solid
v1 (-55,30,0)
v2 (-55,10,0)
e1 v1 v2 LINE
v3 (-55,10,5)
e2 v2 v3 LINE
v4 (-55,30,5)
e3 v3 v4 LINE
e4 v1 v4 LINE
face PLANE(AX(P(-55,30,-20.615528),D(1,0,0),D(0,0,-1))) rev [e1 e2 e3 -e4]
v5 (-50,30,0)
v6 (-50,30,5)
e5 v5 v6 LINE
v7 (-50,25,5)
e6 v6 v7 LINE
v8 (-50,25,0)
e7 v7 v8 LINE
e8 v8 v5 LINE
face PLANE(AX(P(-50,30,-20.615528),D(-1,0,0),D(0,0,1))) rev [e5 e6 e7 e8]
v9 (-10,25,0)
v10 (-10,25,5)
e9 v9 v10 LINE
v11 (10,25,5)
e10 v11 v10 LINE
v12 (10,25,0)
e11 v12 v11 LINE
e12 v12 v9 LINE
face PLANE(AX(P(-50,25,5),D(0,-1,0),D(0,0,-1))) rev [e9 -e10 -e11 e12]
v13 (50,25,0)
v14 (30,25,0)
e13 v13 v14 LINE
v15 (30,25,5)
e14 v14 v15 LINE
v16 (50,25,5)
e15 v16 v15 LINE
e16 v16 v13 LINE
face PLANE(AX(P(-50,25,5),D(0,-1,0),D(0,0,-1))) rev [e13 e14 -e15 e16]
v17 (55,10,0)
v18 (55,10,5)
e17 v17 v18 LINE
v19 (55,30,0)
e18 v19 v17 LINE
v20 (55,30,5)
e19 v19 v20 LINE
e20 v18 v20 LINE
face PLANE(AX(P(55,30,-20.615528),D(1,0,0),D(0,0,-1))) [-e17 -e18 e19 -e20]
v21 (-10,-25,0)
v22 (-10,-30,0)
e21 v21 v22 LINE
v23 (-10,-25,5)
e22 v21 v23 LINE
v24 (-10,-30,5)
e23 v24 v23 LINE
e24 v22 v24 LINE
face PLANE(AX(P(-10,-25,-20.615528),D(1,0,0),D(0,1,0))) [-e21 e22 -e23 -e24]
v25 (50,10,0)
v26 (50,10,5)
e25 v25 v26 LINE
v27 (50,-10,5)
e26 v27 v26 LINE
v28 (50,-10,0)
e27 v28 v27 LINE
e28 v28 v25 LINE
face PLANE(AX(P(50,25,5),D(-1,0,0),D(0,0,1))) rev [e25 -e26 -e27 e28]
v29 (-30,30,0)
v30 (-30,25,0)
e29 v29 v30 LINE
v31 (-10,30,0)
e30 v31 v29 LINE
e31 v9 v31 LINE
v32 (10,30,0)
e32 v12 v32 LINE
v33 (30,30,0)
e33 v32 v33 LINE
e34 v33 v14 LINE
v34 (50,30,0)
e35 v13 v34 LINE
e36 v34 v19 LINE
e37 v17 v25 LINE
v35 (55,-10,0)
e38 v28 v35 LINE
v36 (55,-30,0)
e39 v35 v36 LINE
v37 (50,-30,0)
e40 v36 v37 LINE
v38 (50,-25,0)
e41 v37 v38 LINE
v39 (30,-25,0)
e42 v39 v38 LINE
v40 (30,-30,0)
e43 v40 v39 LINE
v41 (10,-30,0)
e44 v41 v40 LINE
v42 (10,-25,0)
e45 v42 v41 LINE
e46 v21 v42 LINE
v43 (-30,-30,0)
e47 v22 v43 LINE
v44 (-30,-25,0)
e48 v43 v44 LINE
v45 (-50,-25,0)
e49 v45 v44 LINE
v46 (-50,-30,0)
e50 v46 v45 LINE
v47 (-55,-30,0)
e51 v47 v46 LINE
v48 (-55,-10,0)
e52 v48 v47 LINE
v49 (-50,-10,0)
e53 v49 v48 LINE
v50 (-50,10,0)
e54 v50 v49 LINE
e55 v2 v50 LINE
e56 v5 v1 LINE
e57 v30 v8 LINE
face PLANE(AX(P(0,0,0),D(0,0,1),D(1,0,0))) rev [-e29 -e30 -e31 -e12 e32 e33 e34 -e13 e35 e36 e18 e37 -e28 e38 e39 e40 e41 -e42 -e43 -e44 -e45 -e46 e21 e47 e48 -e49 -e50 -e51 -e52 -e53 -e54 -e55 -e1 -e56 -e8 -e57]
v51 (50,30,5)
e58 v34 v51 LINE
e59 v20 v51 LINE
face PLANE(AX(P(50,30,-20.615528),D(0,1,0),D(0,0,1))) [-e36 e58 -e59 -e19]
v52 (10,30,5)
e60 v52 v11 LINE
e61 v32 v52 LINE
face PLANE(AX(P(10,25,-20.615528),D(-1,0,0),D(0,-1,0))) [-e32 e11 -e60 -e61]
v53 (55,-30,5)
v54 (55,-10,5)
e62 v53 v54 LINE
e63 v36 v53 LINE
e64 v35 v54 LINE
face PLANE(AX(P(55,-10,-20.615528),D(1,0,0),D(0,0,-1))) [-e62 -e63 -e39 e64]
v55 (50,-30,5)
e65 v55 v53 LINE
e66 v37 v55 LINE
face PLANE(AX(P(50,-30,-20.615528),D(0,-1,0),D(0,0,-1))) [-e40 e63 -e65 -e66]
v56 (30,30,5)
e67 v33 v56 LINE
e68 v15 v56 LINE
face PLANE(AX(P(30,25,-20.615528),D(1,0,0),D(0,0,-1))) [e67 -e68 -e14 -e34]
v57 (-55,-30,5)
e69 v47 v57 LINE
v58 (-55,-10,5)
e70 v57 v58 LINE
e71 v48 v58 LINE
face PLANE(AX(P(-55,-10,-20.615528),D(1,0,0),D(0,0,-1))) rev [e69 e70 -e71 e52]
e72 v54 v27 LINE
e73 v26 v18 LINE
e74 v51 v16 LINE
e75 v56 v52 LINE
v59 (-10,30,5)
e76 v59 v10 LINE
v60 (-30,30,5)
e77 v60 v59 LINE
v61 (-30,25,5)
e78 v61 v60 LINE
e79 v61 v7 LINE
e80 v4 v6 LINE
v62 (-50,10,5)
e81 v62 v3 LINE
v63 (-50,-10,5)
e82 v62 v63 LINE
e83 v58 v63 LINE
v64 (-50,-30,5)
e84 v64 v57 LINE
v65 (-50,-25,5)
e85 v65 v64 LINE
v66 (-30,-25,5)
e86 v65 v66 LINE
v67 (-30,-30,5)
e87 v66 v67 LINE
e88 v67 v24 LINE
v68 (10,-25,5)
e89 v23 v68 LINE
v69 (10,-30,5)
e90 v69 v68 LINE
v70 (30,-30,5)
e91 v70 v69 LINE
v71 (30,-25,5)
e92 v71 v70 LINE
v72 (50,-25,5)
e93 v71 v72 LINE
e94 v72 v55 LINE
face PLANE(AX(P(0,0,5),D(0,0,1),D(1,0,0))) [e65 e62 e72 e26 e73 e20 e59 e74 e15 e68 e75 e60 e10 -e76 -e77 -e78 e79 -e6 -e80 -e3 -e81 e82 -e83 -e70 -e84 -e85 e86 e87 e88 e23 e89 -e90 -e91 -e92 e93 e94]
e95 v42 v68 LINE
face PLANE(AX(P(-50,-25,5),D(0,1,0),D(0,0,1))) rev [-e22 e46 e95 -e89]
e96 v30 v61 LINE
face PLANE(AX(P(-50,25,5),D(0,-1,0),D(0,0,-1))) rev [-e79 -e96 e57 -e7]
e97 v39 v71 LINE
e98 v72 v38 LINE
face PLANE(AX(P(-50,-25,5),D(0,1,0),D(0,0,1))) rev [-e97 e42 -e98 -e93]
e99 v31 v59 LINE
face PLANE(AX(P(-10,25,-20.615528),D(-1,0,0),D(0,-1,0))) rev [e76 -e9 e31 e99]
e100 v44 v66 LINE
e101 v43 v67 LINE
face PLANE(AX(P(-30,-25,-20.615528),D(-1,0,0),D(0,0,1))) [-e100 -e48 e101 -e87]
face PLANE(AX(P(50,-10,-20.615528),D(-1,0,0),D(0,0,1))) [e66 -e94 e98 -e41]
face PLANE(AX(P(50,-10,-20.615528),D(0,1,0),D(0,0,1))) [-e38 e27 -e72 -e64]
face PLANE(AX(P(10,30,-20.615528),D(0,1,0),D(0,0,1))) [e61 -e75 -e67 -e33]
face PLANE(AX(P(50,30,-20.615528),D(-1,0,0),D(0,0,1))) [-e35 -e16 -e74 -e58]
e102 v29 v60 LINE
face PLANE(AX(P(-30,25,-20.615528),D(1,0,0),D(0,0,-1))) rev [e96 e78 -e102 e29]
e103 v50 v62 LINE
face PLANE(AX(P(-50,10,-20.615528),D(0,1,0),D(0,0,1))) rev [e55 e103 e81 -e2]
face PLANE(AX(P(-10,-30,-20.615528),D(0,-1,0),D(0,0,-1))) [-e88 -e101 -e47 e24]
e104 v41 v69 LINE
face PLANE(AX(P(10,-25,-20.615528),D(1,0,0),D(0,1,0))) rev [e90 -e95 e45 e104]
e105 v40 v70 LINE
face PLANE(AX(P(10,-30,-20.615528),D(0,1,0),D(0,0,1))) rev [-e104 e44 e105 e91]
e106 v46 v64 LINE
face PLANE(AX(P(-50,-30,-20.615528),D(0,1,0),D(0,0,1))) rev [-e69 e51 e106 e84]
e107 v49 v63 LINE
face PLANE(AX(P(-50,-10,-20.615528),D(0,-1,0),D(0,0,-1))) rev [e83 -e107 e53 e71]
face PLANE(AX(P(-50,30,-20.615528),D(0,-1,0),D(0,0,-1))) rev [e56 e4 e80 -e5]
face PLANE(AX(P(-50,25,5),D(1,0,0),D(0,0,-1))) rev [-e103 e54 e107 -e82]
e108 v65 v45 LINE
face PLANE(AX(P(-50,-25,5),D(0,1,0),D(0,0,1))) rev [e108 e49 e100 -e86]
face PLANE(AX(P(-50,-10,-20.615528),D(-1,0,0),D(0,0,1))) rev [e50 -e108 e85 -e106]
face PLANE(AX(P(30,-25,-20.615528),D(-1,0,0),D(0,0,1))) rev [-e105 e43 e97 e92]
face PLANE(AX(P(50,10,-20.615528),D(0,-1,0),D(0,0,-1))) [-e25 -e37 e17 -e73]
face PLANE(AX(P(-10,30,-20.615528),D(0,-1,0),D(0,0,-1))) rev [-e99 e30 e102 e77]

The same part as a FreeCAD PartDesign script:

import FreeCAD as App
import Part
import Sketcher
from FreeCAD import Vector

doc = App.newDocument("Part")
body = doc.addObject("PartDesign::Body", "Body")

# Sketch on XY plane
sketch1 = body.newObject("Sketcher::SketchObject", "Sketch")
sketch1.AttachmentSupport = (doc.getObject("XY_Plane"), [""])
sketch1.MapMode = "FlatFace"
sketch1.addGeometry(Part.LineSegment(Vector(-50, 25, 0), Vector(-50, -25, 0)), False)
sketch1.addGeometry(Part.LineSegment(Vector(-50, -25, 0), Vector(50, -25, 0)), False)
sketch1.addGeometry(Part.LineSegment(Vector(50, -25, 0), Vector(50, 25, 0)), False)
sketch1.addGeometry(Part.LineSegment(Vector(50, 25, 0), Vector(-50, 25, 0)), False)
sketch1.addConstraint(Sketcher.Constraint("Coincident", 0, 2, 1, 1))
sketch1.addConstraint(Sketcher.Constraint("Coincident", 1, 2, 2, 1))
sketch1.addConstraint(Sketcher.Constraint("Coincident", 2, 2, 3, 1))
sketch1.addConstraint(Sketcher.Constraint("Coincident", 3, 2, 0, 1))
sketch1.addConstraint(Sketcher.Constraint("Vertical", 0))
sketch1.addConstraint(Sketcher.Constraint("Horizontal", 1))
sketch1.addConstraint(Sketcher.Constraint("Vertical", 2))
sketch1.addConstraint(Sketcher.Constraint("Horizontal", 3))
sketch1.addConstraint(Sketcher.Constraint("Symmetric", 0, 2, 2, 2, -1, 1))
sketch1.addConstraint(Sketcher.Constraint("DistanceX", 1, 1, 1, 2, 100.0))
sketch1.addConstraint(Sketcher.Constraint("DistanceY", 0, 2, 0, 1, 50.0))
pad1 = body.newObject("PartDesign::Pad", "Pad")
pad1.Profile = sketch1
pad1.Length = 5

# Sketch on XY plane
sketch2 = body.newObject("Sketcher::SketchObject", "Sketch001")
sketch2.AttachmentSupport = (doc.getObject("XY_Plane"), [""])
sketch2.MapMode = "FlatFace"
sketch2.AttachmentOffset = App.Placement(Vector(0, 0, 5), App.Rotation())
sketch2.addGeometry(Part.LineSegment(Vector(50, -10, 0), Vector(50, -30, 0)), False)
sketch2.addGeometry(Part.LineSegment(Vector(50, -30, 0), Vector(55, -30, 0)), False)
sketch2.addGeometry(Part.LineSegment(Vector(55, -30, 0), Vector(55, -10, 0)), False)
sketch2.addGeometry(Part.LineSegment(Vector(55, -10, 0), Vector(50, -10, 0)), False)
sketch2.addConstraint(Sketcher.Constraint("Coincident", 0, 2, 1, 1))
sketch2.addConstraint(Sketcher.Constraint("Coincident", 1, 2, 2, 1))
sketch2.addConstraint(Sketcher.Constraint("Coincident", 2, 2, 3, 1))
sketch2.addConstraint(Sketcher.Constraint("Coincident", 3, 2, 0, 1))
sketch2.addConstraint(Sketcher.Constraint("Vertical", 0))
sketch2.addConstraint(Sketcher.Constraint("Horizontal", 1))
sketch2.addConstraint(Sketcher.Constraint("Vertical", 2))
sketch2.addConstraint(Sketcher.Constraint("Horizontal", 3))
sketch2.addConstraint(Sketcher.Constraint("DistanceX", 1, 1, 1, 2, 5.0))
sketch2.addConstraint(Sketcher.Constraint("DistanceY", 0, 2, 0, 1, 20.0))
sketch2.addConstraint(Sketcher.Constraint("DistanceX", -1, 1, 0, 2, 50.0))
sketch2.addConstraint(Sketcher.Constraint("DistanceY", 0, 2, -1, 1, 30.0))
pad2 = body.newObject("PartDesign::Pad", "Pad001")
pad2.Profile = sketch2
pad2.Length = 5
pad2.Reversed = True
doc.recompute()

mirrored = body.newObject("PartDesign::Mirrored", "Mirrored")
mirrored.Originals = [pad2]
mirrored.MirrorPlane = (doc.getObject("YZ_Plane"), [""])
body.Tip = mirrored

# Sketch on XY plane
sketch3 = body.newObject("Sketcher::SketchObject", "Sketch002")
sketch3.AttachmentSupport = (doc.getObject("XY_Plane"), [""])
sketch3.MapMode = "FlatFace"
sketch3.AttachmentOffset = App.Placement(Vector(0, 0, 5), App.Rotation())
sketch3.addGeometry(Part.LineSegment(Vector(10, 30, 0), Vector(10, 25, 0)), False)
sketch3.addGeometry(Part.LineSegment(Vector(10, 25, 0), Vector(30, 25, 0)), False)
sketch3.addGeometry(Part.LineSegment(Vector(30, 25, 0), Vector(30, 30, 0)), False)
sketch3.addGeometry(Part.LineSegment(Vector(30, 30, 0), Vector(10, 30, 0)), False)
sketch3.addConstraint(Sketcher.Constraint("Coincident", 0, 2, 1, 1))
sketch3.addConstraint(Sketcher.Constraint("Coincident", 1, 2, 2, 1))
sketch3.addConstraint(Sketcher.Constraint("Coincident", 2, 2, 3, 1))
sketch3.addConstraint(Sketcher.Constraint("Coincident", 3, 2, 0, 1))
sketch3.addConstraint(Sketcher.Constraint("Vertical", 0))
sketch3.addConstraint(Sketcher.Constraint("Horizontal", 1))
sketch3.addConstraint(Sketcher.Constraint("Vertical", 2))
sketch3.addConstraint(Sketcher.Constraint("Horizontal", 3))
sketch3.addConstraint(Sketcher.Constraint("DistanceX", 1, 1, 1, 2, 20.0))
sketch3.addConstraint(Sketcher.Constraint("DistanceY", 0, 2, 0, 1, 5.0))
sketch3.addConstraint(Sketcher.Constraint("DistanceX", -1, 1, 0, 2, 10.0))
sketch3.addConstraint(Sketcher.Constraint("DistanceY", -1, 1, 0, 2, 25.0))
pad3 = body.newObject("PartDesign::Pad", "Pad002")
pad3.Profile = sketch3
pad3.Length = 5
pad3.Reversed = True
doc.recompute()

mirrored2 = body.newObject("PartDesign::Mirrored", "Mirrored001")
mirrored2.Originals = [pad3]
mirrored2.MirrorPlane = (doc.getObject("YZ_Plane"), [""])
body.Tip = mirrored2
doc.recompute()

mirrored3 = body.newObject("PartDesign::Mirrored", "Mirrored002")
mirrored3.Originals = [pad3]
mirrored3.MirrorPlane = (doc.getObject("XZ_Plane"), [""])
body.Tip = mirrored3

# Sketch on XY plane
sketch4 = body.newObject("Sketcher::SketchObject", "Sketch003")
sketch4.AttachmentSupport = (doc.getObject("XY_Plane"), [""])
sketch4.MapMode = "FlatFace"
sketch4.AttachmentOffset = App.Placement(Vector(0, 0, 5), App.Rotation())
sketch4.addGeometry(Part.LineSegment(Vector(-10, -30, 0), Vector(-10, -25, 0)), False)
sketch4.addGeometry(Part.LineSegment(Vector(-10, -25, 0), Vector(-30, -25, 0)), False)
sketch4.addGeometry(Part.LineSegment(Vector(-30, -25, 0), Vector(-30, -30, 0)), False)
sketch4.addGeometry(Part.LineSegment(Vector(-30, -30, 0), Vector(-10, -30, 0)), False)
sketch4.addConstraint(Sketcher.Constraint("Coincident", 0, 2, 1, 1))
sketch4.addConstraint(Sketcher.Constraint("Coincident", 1, 2, 2, 1))
sketch4.addConstraint(Sketcher.Constraint("Coincident", 2, 2, 3, 1))
sketch4.addConstraint(Sketcher.Constraint("Coincident", 3, 2, 0, 1))
sketch4.addConstraint(Sketcher.Constraint("Vertical", 0))
sketch4.addConstraint(Sketcher.Constraint("Horizontal", 1))
sketch4.addConstraint(Sketcher.Constraint("Vertical", 2))
sketch4.addConstraint(Sketcher.Constraint("Horizontal", 3))
sketch4.addConstraint(Sketcher.Constraint("DistanceX", 1, 2, 1, 1, 20.0))
sketch4.addConstraint(Sketcher.Constraint("DistanceY", 0, 1, 0, 2, 5.0))
sketch4.addConstraint(Sketcher.Constraint("DistanceX", 0, 2, -1, 1, 10.0))
sketch4.addConstraint(Sketcher.Constraint("DistanceY", 0, 2, -1, 1, 25.0))
pad4 = body.newObject("PartDesign::Pad", "Pad003")
pad4.Profile = sketch4
pad4.Length = 5
pad4.Reversed = True
doc.recompute()

linearpattern = body.newObject("PartDesign::LinearPattern", "LinearPattern")
linearpattern.Originals = [pad2]
linearpattern.Direction = (doc.getObject("Y_Axis"), [""])
linearpattern.Mode = "offset"
linearpattern.Offset = 40
linearpattern.Occurrences = 2
body.Tip = linearpattern

# Sketch on XY plane
sketch5 = body.newObject("Sketcher::SketchObject", "Sketch004")
sketch5.AttachmentSupport = (doc.getObject("XY_Plane"), [""])
sketch5.MapMode = "FlatFace"
sketch5.AttachmentOffset = App.Placement(Vector(0, 0, 5), App.Rotation())
sketch5.addGeometry(Part.LineSegment(Vector(-50, 10, 0), Vector(-50, 30, 0)), False)
sketch5.addGeometry(Part.LineSegment(Vector(-50, 30, 0), Vector(-55, 30, 0)), False)
sketch5.addGeometry(Part.LineSegment(Vector(-55, 30, 0), Vector(-55, 10, 0)), False)
sketch5.addGeometry(Part.LineSegment(Vector(-55, 10, 0), Vector(-50, 10, 0)), False)
sketch5.addConstraint(Sketcher.Constraint("Coincident", 0, 2, 1, 1))
sketch5.addConstraint(Sketcher.Constraint("Coincident", 1, 2, 2, 1))
sketch5.addConstraint(Sketcher.Constraint("Coincident", 2, 2, 3, 1))
sketch5.addConstraint(Sketcher.Constraint("Coincident", 3, 2, 0, 1))
sketch5.addConstraint(Sketcher.Constraint("Vertical", 0))
sketch5.addConstraint(Sketcher.Constraint("Horizontal", 1))
sketch5.addConstraint(Sketcher.Constraint("Vertical", 2))
sketch5.addConstraint(Sketcher.Constraint("Horizontal", 3))
sketch5.addConstraint(Sketcher.Constraint("DistanceX", 1, 2, 1, 1, 5.0))
sketch5.addConstraint(Sketcher.Constraint("DistanceY", 0, 1, 0, 2, 20.0))
sketch5.addConstraint(Sketcher.Constraint("DistanceX", 0, 2, -1, 1, 50.0))
sketch5.addConstraint(Sketcher.Constraint("DistanceY", -1, 1, 0, 2, 30.0))
pad5 = body.newObject("PartDesign::Pad", "Pad004")
pad5.Profile = sketch5
pad5.Length = 5
pad5.Reversed = True

doc.recompute()
